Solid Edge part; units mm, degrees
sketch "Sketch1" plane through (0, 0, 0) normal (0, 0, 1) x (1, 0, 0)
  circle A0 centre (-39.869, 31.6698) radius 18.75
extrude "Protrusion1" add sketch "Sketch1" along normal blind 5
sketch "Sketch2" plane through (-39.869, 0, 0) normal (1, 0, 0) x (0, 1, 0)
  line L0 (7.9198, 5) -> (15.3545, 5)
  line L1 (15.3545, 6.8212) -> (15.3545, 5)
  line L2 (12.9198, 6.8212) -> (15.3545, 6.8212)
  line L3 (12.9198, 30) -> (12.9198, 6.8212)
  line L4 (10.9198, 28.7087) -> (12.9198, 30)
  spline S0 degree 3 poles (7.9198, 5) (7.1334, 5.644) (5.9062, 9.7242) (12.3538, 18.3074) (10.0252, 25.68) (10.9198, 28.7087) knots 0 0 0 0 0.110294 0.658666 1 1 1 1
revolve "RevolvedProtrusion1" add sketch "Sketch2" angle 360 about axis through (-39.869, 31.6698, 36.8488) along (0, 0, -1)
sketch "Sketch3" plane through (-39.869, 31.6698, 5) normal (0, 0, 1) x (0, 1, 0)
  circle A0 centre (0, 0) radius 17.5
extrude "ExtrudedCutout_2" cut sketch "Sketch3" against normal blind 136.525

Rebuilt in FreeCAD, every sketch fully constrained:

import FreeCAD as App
import Part
import Sketcher
from FreeCAD import Vector
Q = App.Units.Quantity

doc = App.newDocument("Part")
params = doc.addObject("Spreadsheet::Sheet", "Params")
for row, (alias, value) in enumerate([
    ("sketch1_diameter", "37.5 mm"),
    ("pad1_length", "5 mm"),
    ("sketch2_height", "25 mm"),
    ("revolution_angle", "360 deg"),
    ("sketch3_diameter", "35 mm"),
    ("pocket1_length", "136.525 mm"),
], start=1):
    params.set(f"A{row}", alias)
    params.set(f"B{row}", "=" + value)
    params.setAlias(f"B{row}", alias)

body = doc.addObject("PartDesign::Body", "Body")

# Sketch on XY plane
sketch1 = body.newObject("Sketcher::SketchObject", "Sketch")
sketch1.AttachmentSupport = (doc.getObject("XY_Plane"), [""])
sketch1.MapMode = "FlatFace"
sketch1.addGeometry(Part.Circle(Vector(-40, 32, 0), Vector(0, 0, 1), 19), False)
sketch1.addConstraint([
    Sketcher.Constraint("Diameter", 0, Q("37.5 mm")),
    Sketcher.Constraint("DistanceX", 0, 3, -1, 1, Q("39.869 mm")),
    Sketcher.Constraint("DistanceY", -1, 1, 0, 3, Q("31.6698 mm")),
])
sketch1.setExpression("Constraints[0]", "Params.sketch1_diameter")
pad1 = body.newObject("PartDesign::Pad", "Pad")
pad1.Profile = sketch1
pad1.setExpression("Length", "Params.pad1_length")

# Sketch on YZ plane
sketch2 = body.newObject("Sketcher::SketchObject", "Sketch001")
sketch2.AttachmentSupport = (doc.getObject("YZ_Plane"), [""])
sketch2.MapMode = "FlatFace"
sketch2.AttachmentOffset = App.Placement(Vector(0, 0, -39.869), App.Rotation())
sketch2.addGeometry([
    Part.BSplineCurve([Vector(7.9198, 5, 0), Vector(7.1334, 5.644, 0), Vector(5.9062, 9.7242, 0), Vector(12.3538, 18.3074, 0), Vector(10.0252, 25.68, 0), Vector(10.9198, 28.7087, 0)], [4, 1, 1, 4], [0, 0.110294, 0.658666, 1], False, 3, [1, 1, 1, 1, 1, 1], False),  # 0
    Part.LineSegment(Vector(7.9198, 5, 0), Vector(15.3545, 5, 0)),  # 1
    Part.LineSegment(Vector(15.3545, 5, 0), Vector(15.3545, 6.8212, 0)),  # 2
    Part.LineSegment(Vector(15.3545, 6.8212, 0), Vector(12.9198, 6.8212, 0)),  # 3
    Part.LineSegment(Vector(12.9198, 6.8212, 0), Vector(12.9198, 30, 0)),  # 4
    Part.LineSegment(Vector(12.9198, 30, 0), Vector(10.9198, 28.7087, 0)),  # 5
], False)
sketch2.addGeometry(Part.LineSegment(Vector(31.6698, 30, 0), Vector(31.6698, 5, 0)), True)  # axis
sketch2.addConstraint([
    Sketcher.Constraint("Block", 0),
    Sketcher.Constraint("Coincident", 0, 1, 1, 1),
    Sketcher.Constraint("Coincident", 1, 2, 2, 1),
    Sketcher.Constraint("Coincident", 2, 2, 3, 1),
    Sketcher.Constraint("Coincident", 3, 2, 4, 1),
    Sketcher.Constraint("Coincident", 4, 2, 5, 1),
    Sketcher.Constraint("Coincident", 5, 2, 0, 2),
    Sketcher.Constraint("Horizontal", 1),
    Sketcher.Constraint("Vertical", 2),
    Sketcher.Constraint("Horizontal", 3),
    Sketcher.Constraint("Vertical", 4),
    Sketcher.Constraint("Vertical", 6),
    Sketcher.Constraint("Horizontal", 4, 2, 6, 1),
    Sketcher.Constraint("Horizontal", 1, 2, 6, 2),
    Sketcher.Constraint("DistanceY", 6, 2, 6, 1, Q("25 mm")),
    Sketcher.Constraint("DistanceX", 5, 2, 4, 2, Q("2 mm")),
    Sketcher.Constraint("DistanceX", 4, 2, 6, 1, Q("18.75 mm")),
    Sketcher.Constraint("DistanceX", 1, 1, 1, 2, Q("7.4347 mm")),
    Sketcher.Constraint("DistanceY", 2, 1, 2, 2, Q("1.8212 mm")),
])
sketch2.setExpression("Constraints[14]", "Params.sketch2_height")
revolution = body.newObject("PartDesign::Revolution", "Revolution")
revolution.Profile = sketch2
revolution.ReferenceAxis = (sketch2, ["Axis0"])
revolution.setExpression("Angle", "Params.revolution_angle")

# Sketch on XY plane
sketch3 = body.newObject("Sketcher::SketchObject", "Sketch002")
sketch3.AttachmentSupport = (doc.getObject("XY_Plane"), [""])
sketch3.MapMode = "FlatFace"
sketch3.AttachmentOffset = App.Placement(Vector(0, 0, 5), App.Rotation())
sketch3.addGeometry(Part.Circle(Vector(-40, 32, 0), Vector(0, 0, 1), 18), False)
sketch3.addConstraint([
    Sketcher.Constraint("Diameter", 0, Q("35 mm")),
    Sketcher.Constraint("DistanceX", 0, 3, -1, 1, Q("39.869 mm")),
    Sketcher.Constraint("DistanceY", -1, 1, 0, 3, Q("31.6698 mm")),
])
sketch3.setExpression("Constraints[0]", "Params.sketch3_diameter")
pocket1 = body.newObject("PartDesign::Pocket", "Pocket")
pocket1.Profile = sketch3
pocket1.setExpression("Length", "Params.pocket1_length")

doc.recompute()
